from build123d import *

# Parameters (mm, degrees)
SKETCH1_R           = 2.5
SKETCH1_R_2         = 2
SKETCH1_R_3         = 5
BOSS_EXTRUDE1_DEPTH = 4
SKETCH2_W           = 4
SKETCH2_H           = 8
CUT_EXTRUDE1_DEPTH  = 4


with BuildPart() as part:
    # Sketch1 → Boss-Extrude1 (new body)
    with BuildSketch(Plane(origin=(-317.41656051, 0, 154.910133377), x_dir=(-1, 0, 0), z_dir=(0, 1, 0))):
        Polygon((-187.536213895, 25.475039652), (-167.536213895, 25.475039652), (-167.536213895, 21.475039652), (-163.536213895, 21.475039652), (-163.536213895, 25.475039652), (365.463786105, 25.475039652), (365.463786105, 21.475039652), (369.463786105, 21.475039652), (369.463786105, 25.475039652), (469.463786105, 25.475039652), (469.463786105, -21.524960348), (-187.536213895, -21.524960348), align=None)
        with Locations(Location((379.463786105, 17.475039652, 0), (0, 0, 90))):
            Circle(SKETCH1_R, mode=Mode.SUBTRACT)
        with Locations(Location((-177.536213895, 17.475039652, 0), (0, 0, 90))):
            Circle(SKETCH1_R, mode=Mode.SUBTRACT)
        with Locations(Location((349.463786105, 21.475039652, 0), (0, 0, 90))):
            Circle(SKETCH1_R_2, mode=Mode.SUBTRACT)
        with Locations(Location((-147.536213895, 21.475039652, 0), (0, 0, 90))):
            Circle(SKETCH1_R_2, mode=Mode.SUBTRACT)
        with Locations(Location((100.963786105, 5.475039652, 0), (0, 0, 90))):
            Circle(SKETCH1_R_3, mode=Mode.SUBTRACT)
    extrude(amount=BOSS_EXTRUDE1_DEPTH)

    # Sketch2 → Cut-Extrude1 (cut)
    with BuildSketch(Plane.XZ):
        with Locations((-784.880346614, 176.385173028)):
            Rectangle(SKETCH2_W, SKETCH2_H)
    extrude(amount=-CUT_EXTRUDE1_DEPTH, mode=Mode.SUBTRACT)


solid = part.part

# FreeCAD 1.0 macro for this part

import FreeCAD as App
import Part
import Sketcher


def add_polygon(sketch, points):
    """Adds a closed chain of lines whose ends are joined by coincident constraints."""
    first, n = sketch.GeometryCount, len(points)
    for a, b in zip(points, points[1:] + points[:1]):
        sketch.addGeometry(Part.LineSegment(App.Vector(*a, 0), App.Vector(*b, 0)), False)
    for i in range(n):
        sketch.addConstraint(Sketcher.Constraint("Coincident", first + i, 2, first + (i + 1) % n, 1))

doc = App.newDocument("Part")
body = doc.addObject("PartDesign::Body", "Body")

sketch1 = body.newObject("Sketcher::SketchObject", "Sketch")
sketch1.AttachmentSupport = (doc.getObject("XZ_Plane"), [""])
sketch1.MapMode = "FlatFace"
add_polygon(sketch1, [(-149.9, 180.4), (-129.9, 180.4), (-129.9, 133.4), (-786.9, 133.4), (-786.9, 180.4), (-686.9, 180.4), (-686.9, 176.4), (-682.9, 176.4), (-682.9, 180.4), (-153.9, 180.4), (-153.9, 176.4), (-149.9, 176.4)])
sketch1.addGeometry(Part.Circle(App.Vector(-418.4, 160.4, 0), App.Vector(0, 0, 1), 5), False)
sketch1.addGeometry(Part.Circle(App.Vector(-696.9, 172.4, 0), App.Vector(0, 0, 1), 2.5), False)
sketch1.addGeometry(Part.Circle(App.Vector(-666.9, 176.4, 0), App.Vector(0, 0, 1), 2), False)
sketch1.addGeometry(Part.Circle(App.Vector(-139.9, 172.4, 0), App.Vector(0, 0, 1), 2.5), False)
sketch1.addGeometry(Part.Circle(App.Vector(-169.9, 176.4, 0), App.Vector(0, 0, 1), 2), False)
sketch1.addConstraint([
    Sketcher.Constraint("Horizontal", 0),
    Sketcher.Constraint("Vertical", 1),
    Sketcher.Constraint("Horizontal", 2),
    Sketcher.Constraint("Vertical", 3),
    Sketcher.Constraint("Horizontal", 4),
    Sketcher.Constraint("Vertical", 5),
    Sketcher.Constraint("Horizontal", 6),
    Sketcher.Constraint("Vertical", 7),
    Sketcher.Constraint("Horizontal", 8),
    Sketcher.Constraint("Vertical", 9),
    Sketcher.Constraint("Horizontal", 10),
    Sketcher.Constraint("Vertical", 11),
    Sketcher.Constraint("Equal", 13, 15),
    Sketcher.Constraint("Equal", 14, 16),
    Sketcher.Constraint("Horizontal", 13, 3, 15, 3),
    Sketcher.Constraint("Horizontal", 14, 3, 16, 3),
    Sketcher.Constraint("Horizontal", 0, 2, 3, 2),
    Sketcher.Constraint("Horizontal", 16, 3, 5, 2),
    Sketcher.Constraint("Horizontal", 4, 2, 7, 2),
    Sketcher.Constraint("Horizontal", 6, 2, 9, 2),
    Sketcher.Constraint("Equal", 6, 10),
    Sketcher.Constraint("Equal", 10, 5),
    Sketcher.Constraint("Diameter", 12, 10.0),
    Sketcher.Constraint("Diameter", 13, 5.0),
    Sketcher.Constraint("Diameter", 14, 4.0),
    Sketcher.Constraint("DistanceX", 0, 1, 0, 2, 20.0),
    Sketcher.Constraint("DistanceX", 2, 2, 2, 1, 657.0),
    Sketcher.Constraint("DistanceX", 4, 1, 4, 2, 100.0),
    Sketcher.Constraint("DistanceX", 6, 1, 6, 2, 4.0),
    Sketcher.Constraint("DistanceY", 1, 2, 1, 1, 47.0),
    Sketcher.Constraint("DistanceY", 12, 3, 13, 3, 12.0),
    Sketcher.Constraint("DistanceX", 13, 3, 14, 3, 30.0),
    Sketcher.Constraint("DistanceY", 13, 3, 14, 3, 4.0),
    Sketcher.Constraint("DistanceX", 14, 3, 15, 3, 527.0),
    Sketcher.Constraint("DistanceX", 16, 3, 15, 3, 30.0),
    Sketcher.Constraint("DistanceX", 15, 3, 0, 2, 10.0),
    Sketcher.Constraint("DistanceX", 13, 3, 12, 3, 278.5),
    Sketcher.Constraint("DistanceX", 12, 3, -1, 1, 418.380347),
    Sketcher.Constraint("DistanceY", -1, 1, 12, 3, 160.385173),
])
pad1 = body.newObject("PartDesign::Pad", "Pad")
pad1.Profile = sketch1
pad1.Length = 4
pad1.Reversed = True

sketch2 = body.newObject("Sketcher::SketchObject", "Sketch001")
sketch2.AttachmentSupport = (doc.getObject("XZ_Plane"), [""])
sketch2.MapMode = "FlatFace"
add_polygon(sketch2, [(-786.9, 180.4), (-786.9, 172.4), (-782.9, 172.4), (-782.9, 180.4)])
sketch2.addConstraint([
    Sketcher.Constraint("Vertical", 0),
    Sketcher.Constraint("Horizontal", 1),
    Sketcher.Constraint("Vertical", 2),
    Sketcher.Constraint("Horizontal", 3),
    Sketcher.Constraint("DistanceX", 1, 1, 1, 2, 4.0),
    Sketcher.Constraint("DistanceY", 0, 2, 0, 1, 8.0),
    Sketcher.Constraint("DistanceX", 0, 2, -1, 1, 786.880347),
    Sketcher.Constraint("DistanceY", -1, 1, 0, 2, 172.385173),
])
pocket1 = body.newObject("PartDesign::Pocket", "Pocket")
pocket1.Profile = sketch2
pocket1.Length = 4

doc.recompute()
